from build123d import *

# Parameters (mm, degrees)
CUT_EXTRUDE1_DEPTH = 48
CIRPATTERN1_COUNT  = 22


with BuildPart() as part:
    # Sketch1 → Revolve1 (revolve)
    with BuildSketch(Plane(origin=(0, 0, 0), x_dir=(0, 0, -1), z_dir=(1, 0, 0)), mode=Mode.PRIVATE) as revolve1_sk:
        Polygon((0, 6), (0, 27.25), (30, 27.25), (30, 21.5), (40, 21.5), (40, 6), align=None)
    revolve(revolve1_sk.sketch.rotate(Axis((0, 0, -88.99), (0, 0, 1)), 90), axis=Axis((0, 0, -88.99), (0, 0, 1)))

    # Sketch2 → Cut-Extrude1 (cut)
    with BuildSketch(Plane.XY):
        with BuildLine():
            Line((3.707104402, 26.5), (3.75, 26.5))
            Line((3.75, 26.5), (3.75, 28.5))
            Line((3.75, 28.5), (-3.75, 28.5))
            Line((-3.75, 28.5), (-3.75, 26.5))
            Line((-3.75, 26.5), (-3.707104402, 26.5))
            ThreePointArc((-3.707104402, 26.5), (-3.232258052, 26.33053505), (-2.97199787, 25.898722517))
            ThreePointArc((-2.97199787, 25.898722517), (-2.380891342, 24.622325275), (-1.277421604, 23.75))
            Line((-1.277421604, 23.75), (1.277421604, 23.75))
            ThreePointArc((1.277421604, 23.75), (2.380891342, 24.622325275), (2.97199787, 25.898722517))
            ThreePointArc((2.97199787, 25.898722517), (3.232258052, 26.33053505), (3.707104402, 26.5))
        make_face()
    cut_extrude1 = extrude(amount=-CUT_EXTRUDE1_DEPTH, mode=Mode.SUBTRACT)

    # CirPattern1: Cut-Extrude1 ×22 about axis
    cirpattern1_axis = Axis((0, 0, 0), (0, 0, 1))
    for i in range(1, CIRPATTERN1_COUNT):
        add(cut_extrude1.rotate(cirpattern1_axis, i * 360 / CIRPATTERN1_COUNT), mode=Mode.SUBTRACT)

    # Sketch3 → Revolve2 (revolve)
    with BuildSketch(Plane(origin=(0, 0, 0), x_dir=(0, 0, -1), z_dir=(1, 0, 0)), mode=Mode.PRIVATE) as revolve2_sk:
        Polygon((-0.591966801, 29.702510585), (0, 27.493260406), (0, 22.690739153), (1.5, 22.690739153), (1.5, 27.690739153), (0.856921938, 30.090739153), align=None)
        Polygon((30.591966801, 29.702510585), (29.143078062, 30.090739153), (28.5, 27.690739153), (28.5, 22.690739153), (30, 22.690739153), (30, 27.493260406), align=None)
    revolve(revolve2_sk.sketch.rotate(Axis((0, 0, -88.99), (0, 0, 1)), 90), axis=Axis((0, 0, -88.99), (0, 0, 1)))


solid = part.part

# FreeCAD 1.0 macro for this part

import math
import FreeCAD as App
import Part
import Sketcher
Q = App.Units.Quantity

doc = App.newDocument("Part")
body = doc.addObject("PartDesign::Body", "Body")

sketch1 = body.newObject("Sketcher::SketchObject", "Sketch")
sketch1.AttachmentSupport = (doc.getObject("YZ_Plane"), [""])
sketch1.MapMode = "FlatFace"
sketch1.addGeometry(Part.LineSegment(App.Vector(27, 0, 0), App.Vector(6, 0, 0)), False)
sketch1.addGeometry(Part.LineSegment(App.Vector(6, 0, 0), App.Vector(6, -40, 0)), False)
sketch1.addGeometry(Part.LineSegment(App.Vector(6, -40, 0), App.Vector(22, -40, 0)), False)
sketch1.addGeometry(Part.LineSegment(App.Vector(22, -40, 0), App.Vector(22, -30, 0)), False)
sketch1.addGeometry(Part.LineSegment(App.Vector(22, -30, 0), App.Vector(27, -30, 0)), False)
sketch1.addGeometry(Part.LineSegment(App.Vector(27, -30, 0), App.Vector(27, 0, 0)), False)
sketch1.addConstraint(Sketcher.Constraint("Coincident", 0, 2, 1, 1))
sketch1.addConstraint(Sketcher.Constraint("Coincident", 1, 2, 2, 1))
sketch1.addConstraint(Sketcher.Constraint("Coincident", 2, 2, 3, 1))
sketch1.addConstraint(Sketcher.Constraint("Coincident", 3, 2, 4, 1))
sketch1.addConstraint(Sketcher.Constraint("Coincident", 4, 2, 5, 1))
sketch1.addConstraint(Sketcher.Constraint("Coincident", 5, 2, 0, 1))
sketch1.addConstraint(Sketcher.Constraint("Horizontal", 0))
sketch1.addConstraint(Sketcher.Constraint("Vertical", 1))
sketch1.addConstraint(Sketcher.Constraint("Horizontal", 2))
sketch1.addConstraint(Sketcher.Constraint("Vertical", 3))
sketch1.addConstraint(Sketcher.Constraint("Horizontal", 4))
sketch1.addConstraint(Sketcher.Constraint("Vertical", 5))
sketch1.addConstraint(Sketcher.Constraint("PointOnObject", 0, 2, -1))
sketch1.addConstraint(Sketcher.Constraint("DistanceY", 1, 2, 1, 1, Q("40 mm")))
sketch1.addConstraint(Sketcher.Constraint("DistanceY", 3, 1, 3, 2, Q("10 mm")))
sketch1.addConstraint(Sketcher.Constraint("DistanceX", 2, 1, 2, 2, Q("15.5 mm")))
sketch1.addConstraint(Sketcher.Constraint("DistanceX", -1, 1, 0, 2, Q("6 mm")))
sketch1.addConstraint(Sketcher.Constraint("DistanceX", 0, 2, 0, 1, Q("21.25 mm")))
revolution = body.newObject("PartDesign::Revolution", "Revolution")
revolution.Profile = sketch1
revolution.ReferenceAxis = (sketch1, ["V_Axis"])
revolution.Angle = 360

sketch2 = body.newObject("Sketcher::SketchObject", "Sketch001")
sketch2.AttachmentSupport = (doc.getObject("XY_Plane"), [""])
sketch2.MapMode = "FlatFace"
sketch2.addGeometry(Part.LineSegment(App.Vector(3.707, 26.5, 0), App.Vector(3.75, 26.5, 0)), False)
sketch2.addGeometry(Part.LineSegment(App.Vector(3.75, 26.5, 0), App.Vector(3.75, 28.5, 0)), False)
sketch2.addGeometry(Part.LineSegment(App.Vector(3.75, 28.5, 0), App.Vector(-3.75, 28.5, 0)), False)
sketch2.addGeometry(Part.LineSegment(App.Vector(-3.75, 28.5, 0), App.Vector(-3.75, 26.5, 0)), False)
sketch2.addGeometry(Part.LineSegment(App.Vector(-3.75, 26.5, 0), App.Vector(-3.707, 26.5, 0)), False)
sketch2.addGeometry(Part.ArcOfCircle(Part.Circle(App.Vector(-3.707, 25.75, 0), App.Vector(0, 0, 1), 0.75), math.radians(11), math.radians(90)), False)
sketch2.addGeometry(Part.ArcOfCircle(Part.Circle(App.Vector(0, 26.5, 0), App.Vector(0, 0, 1), 3.032), math.radians(-169), math.radians(-115)), False)
sketch2.addGeometry(Part.LineSegment(App.Vector(-1.277, 23.75, 0), App.Vector(1.277, 23.75, 0)), False)
sketch2.addGeometry(Part.ArcOfCircle(Part.Circle(App.Vector(0, 26.5, 0), App.Vector(0, 0, 1), 3.032), math.radians(-65), math.radians(-11)), False)
sketch2.addGeometry(Part.ArcOfCircle(Part.Circle(App.Vector(3.707, 25.75, 0), App.Vector(0, 0, 1), 0.75), math.radians(90), math.radians(169)), False)
sketch2.addConstraint(Sketcher.Constraint("Coincident", 0, 2, 1, 1))
sketch2.addConstraint(Sketcher.Constraint("Coincident", 1, 2, 2, 1))
sketch2.addConstraint(Sketcher.Constraint("Coincident", 2, 2, 3, 1))
sketch2.addConstraint(Sketcher.Constraint("Coincident", 3, 2, 4, 1))
sketch2.addConstraint(Sketcher.Constraint("Tangent", 4, 2, 5, 2))
sketch2.addConstraint(Sketcher.Constraint("Tangent", 5, 1, 6, 1))
sketch2.addConstraint(Sketcher.Constraint("Coincident", 6, 2, 7, 1))
sketch2.addConstraint(Sketcher.Constraint("Coincident", 7, 2, 8, 1))
sketch2.addConstraint(Sketcher.Constraint("Tangent", 8, 2, 9, 2))
sketch2.addConstraint(Sketcher.Constraint("Tangent", 9, 1, 0, 1))
sketch2.addConstraint(Sketcher.Constraint("Horizontal", 0))
sketch2.addConstraint(Sketcher.Constraint("Vertical", 1))
sketch2.addConstraint(Sketcher.Constraint("Horizontal", 2))
sketch2.addConstraint(Sketcher.Constraint("Vertical", 3))
sketch2.addConstraint(Sketcher.Constraint("Horizontal", 4))
sketch2.addConstraint(Sketcher.Constraint("Horizontal", 7))
sketch2.addConstraint(Sketcher.Constraint("Coincident", 8, 3, 6, 3))
sketch2.addConstraint(Sketcher.Constraint("Equal", 6, 8))
sketch2.addConstraint(Sketcher.Constraint("Equal", 5, 9))
sketch2.addConstraint(Sketcher.Constraint("Symmetric", 5, 3, 9, 3, -2))
sketch2.addConstraint(Sketcher.Constraint("Horizontal", 8, 3, 0, 2))
sketch2.addConstraint(Sketcher.Constraint("Equal", 0, 4))
sketch2.addConstraint(Sketcher.Constraint("DistanceY", 1, 1, 1, 2, Q("2 mm")))
sketch2.addConstraint(Sketcher.Constraint("Radius", 5, Q("0.75 mm")))
sketch2.addConstraint(Sketcher.Constraint("DistanceX", 2, 2, 2, 1, Q("7.5 mm")))
sketch2.addConstraint(Sketcher.Constraint("DistanceY", 6, 2, 5, 3, Q("2 mm")))
sketch2.addConstraint(Sketcher.Constraint("DistanceY", -1, 1, 6, 3, Q("26.5 mm")))
sketch2.addConstraint(Sketcher.Constraint("Radius", 6, Q("3.032211 mm")))
pocket1 = body.newObject("PartDesign::Pocket", "Pocket")
pocket1.Profile = sketch2
pocket1.Length = 48
doc.recompute()

polarpattern = body.newObject("PartDesign::PolarPattern", "PolarPattern")
polarpattern.Originals = [pocket1]
polarpattern.Axis = (doc.getObject("Z_Axis"), [""])
polarpattern.Angle = 360
polarpattern.Occurrences = 22
body.Tip = polarpattern

sketch3 = body.newObject("Sketcher::SketchObject", "Sketch002")
sketch3.AttachmentSupport = (doc.getObject("YZ_Plane"), [""])
sketch3.MapMode = "FlatFace"
sketch3.addGeometry(Part.LineSegment(App.Vector(29.7, 0.6, 0), App.Vector(27.5, 0, 0)), False)
sketch3.addGeometry(Part.LineSegment(App.Vector(27.5, 0, 0), App.Vector(22.7, 0, 0)), False)
sketch3.addGeometry(Part.LineSegment(App.Vector(22.7, 0, 0), App.Vector(22.7, -1.5, 0)), False)
sketch3.addGeometry(Part.LineSegment(App.Vector(22.7, -1.5, 0), App.Vector(27.7, -1.5, 0)), False)
sketch3.addGeometry(Part.LineSegment(App.Vector(27.7, -1.5, 0), App.Vector(30.1, -0.9, 0)), False)
sketch3.addGeometry(Part.LineSegment(App.Vector(30.1, -0.9, 0), App.Vector(29.7, 0.6, 0)), False)
sketch3.addGeometry(Part.LineSegment(App.Vector(29.7, -30.6, 0), App.Vector(30.1, -29.1, 0)), False)
sketch3.addGeometry(Part.LineSegment(App.Vector(30.1, -29.1, 0), App.Vector(27.7, -28.5, 0)), False)
sketch3.addGeometry(Part.LineSegment(App.Vector(27.7, -28.5, 0), App.Vector(22.7, -28.5, 0)), False)
sketch3.addGeometry(Part.LineSegment(App.Vector(22.7, -28.5, 0), App.Vector(22.7, -30, 0)), False)
sketch3.addGeometry(Part.LineSegment(App.Vector(22.7, -30, 0), App.Vector(27.5, -30, 0)), False)
sketch3.addGeometry(Part.LineSegment(App.Vector(27.5, -30, 0), App.Vector(29.7, -30.6, 0)), False)
sketch3.addConstraint(Sketcher.Constraint("Coincident", 0, 2, 1, 1))
sketch3.addConstraint(Sketcher.Constraint("Coincident", 1, 2, 2, 1))
sketch3.addConstraint(Sketcher.Constraint("Coincident", 2, 2, 3, 1))
sketch3.addConstraint(Sketcher.Constraint("Coincident", 3, 2, 4, 1))
sketch3.addConstraint(Sketcher.Constraint("Coincident", 4, 2, 5, 1))
sketch3.addConstraint(Sketcher.Constraint("Coincident", 5, 2, 0, 1))
sketch3.addConstraint(Sketcher.Constraint("Coincident", 6, 2, 7, 1))
sketch3.addConstraint(Sketcher.Constraint("Coincident", 7, 2, 8, 1))
sketch3.addConstraint(Sketcher.Constraint("Coincident", 8, 2, 9, 1))
sketch3.addConstraint(Sketcher.Constraint("Coincident", 9, 2, 10, 1))
sketch3.addConstraint(Sketcher.Constraint("Coincident", 10, 2, 11, 1))
sketch3.addConstraint(Sketcher.Constraint("Coincident", 11, 2, 6, 1))
sketch3.addConstraint(Sketcher.Constraint("Horizontal", 1))
sketch3.addConstraint(Sketcher.Constraint("Vertical", 2))
sketch3.addConstraint(Sketcher.Constraint("Horizontal", 3))
sketch3.addConstraint(Sketcher.Constraint("Horizontal", 8))
sketch3.addConstraint(Sketcher.Constraint("Vertical", 9))
sketch3.addConstraint(Sketcher.Constraint("Horizontal", 10))
sketch3.addConstraint(Sketcher.Constraint("PointOnObject", 0, 2, -1))
sketch3.addConstraint(Sketcher.Constraint("Parallel", 0, 4))
sketch3.addConstraint(Sketcher.Constraint("Perpendicular", 4, 5))
sketch3.addConstraint(Sketcher.Constraint("Perpendicular", 6, 7))
sketch3.addConstraint(Sketcher.Constraint("Parallel", 7, 11))
sketch3.addConstraint(Sketcher.Constraint("Vertical", 4, 2, 6, 2))
sketch3.addConstraint(Sketcher.Constraint("Vertical", 3, 2, 7, 2))
sketch3.addConstraint(Sketcher.Constraint("Vertical", 2, 2, 8, 2))
sketch3.addConstraint(Sketcher.Constraint("Vertical", 0, 2, 10, 2))
sketch3.addConstraint(Sketcher.Constraint("Vertical", 5, 2, 11, 2))
sketch3.addConstraint(Sketcher.Constraint("Equal", 2, 9))
sketch3.addConstraint(Sketcher.Constraint("DistanceX", 3, 1, 3, 2, Q("5 mm")))
sketch3.addConstraint(Sketcher.Constraint("Angle", 0, Q("-165 deg")))
sketch3.addConstraint(Sketcher.Constraint("DistanceY", 2, 2, 2, 1, Q("1.5 mm")))
sketch3.addConstraint(Sketcher.Constraint("DistanceY", 9, 2, -1, 1, Q("30 mm")))
sketch3.addConstraint(Sketcher.Constraint("Distance", 5, Q("1.5 mm")))
sketch3.addConstraint(Sketcher.Constraint("DistanceX", 3, 2, 4, 2, Q("2.4 mm")))
sketch3.addConstraint(Sketcher.Constraint("DistanceX", -1, 1, 0, 2, Q("27.49326 mm")))
revolution2 = body.newObject("PartDesign::Revolution", "Revolution001")
revolution2.Profile = sketch3
revolution2.ReferenceAxis = (sketch3, ["V_Axis"])
revolution2.Angle = 360

doc.recompute()
